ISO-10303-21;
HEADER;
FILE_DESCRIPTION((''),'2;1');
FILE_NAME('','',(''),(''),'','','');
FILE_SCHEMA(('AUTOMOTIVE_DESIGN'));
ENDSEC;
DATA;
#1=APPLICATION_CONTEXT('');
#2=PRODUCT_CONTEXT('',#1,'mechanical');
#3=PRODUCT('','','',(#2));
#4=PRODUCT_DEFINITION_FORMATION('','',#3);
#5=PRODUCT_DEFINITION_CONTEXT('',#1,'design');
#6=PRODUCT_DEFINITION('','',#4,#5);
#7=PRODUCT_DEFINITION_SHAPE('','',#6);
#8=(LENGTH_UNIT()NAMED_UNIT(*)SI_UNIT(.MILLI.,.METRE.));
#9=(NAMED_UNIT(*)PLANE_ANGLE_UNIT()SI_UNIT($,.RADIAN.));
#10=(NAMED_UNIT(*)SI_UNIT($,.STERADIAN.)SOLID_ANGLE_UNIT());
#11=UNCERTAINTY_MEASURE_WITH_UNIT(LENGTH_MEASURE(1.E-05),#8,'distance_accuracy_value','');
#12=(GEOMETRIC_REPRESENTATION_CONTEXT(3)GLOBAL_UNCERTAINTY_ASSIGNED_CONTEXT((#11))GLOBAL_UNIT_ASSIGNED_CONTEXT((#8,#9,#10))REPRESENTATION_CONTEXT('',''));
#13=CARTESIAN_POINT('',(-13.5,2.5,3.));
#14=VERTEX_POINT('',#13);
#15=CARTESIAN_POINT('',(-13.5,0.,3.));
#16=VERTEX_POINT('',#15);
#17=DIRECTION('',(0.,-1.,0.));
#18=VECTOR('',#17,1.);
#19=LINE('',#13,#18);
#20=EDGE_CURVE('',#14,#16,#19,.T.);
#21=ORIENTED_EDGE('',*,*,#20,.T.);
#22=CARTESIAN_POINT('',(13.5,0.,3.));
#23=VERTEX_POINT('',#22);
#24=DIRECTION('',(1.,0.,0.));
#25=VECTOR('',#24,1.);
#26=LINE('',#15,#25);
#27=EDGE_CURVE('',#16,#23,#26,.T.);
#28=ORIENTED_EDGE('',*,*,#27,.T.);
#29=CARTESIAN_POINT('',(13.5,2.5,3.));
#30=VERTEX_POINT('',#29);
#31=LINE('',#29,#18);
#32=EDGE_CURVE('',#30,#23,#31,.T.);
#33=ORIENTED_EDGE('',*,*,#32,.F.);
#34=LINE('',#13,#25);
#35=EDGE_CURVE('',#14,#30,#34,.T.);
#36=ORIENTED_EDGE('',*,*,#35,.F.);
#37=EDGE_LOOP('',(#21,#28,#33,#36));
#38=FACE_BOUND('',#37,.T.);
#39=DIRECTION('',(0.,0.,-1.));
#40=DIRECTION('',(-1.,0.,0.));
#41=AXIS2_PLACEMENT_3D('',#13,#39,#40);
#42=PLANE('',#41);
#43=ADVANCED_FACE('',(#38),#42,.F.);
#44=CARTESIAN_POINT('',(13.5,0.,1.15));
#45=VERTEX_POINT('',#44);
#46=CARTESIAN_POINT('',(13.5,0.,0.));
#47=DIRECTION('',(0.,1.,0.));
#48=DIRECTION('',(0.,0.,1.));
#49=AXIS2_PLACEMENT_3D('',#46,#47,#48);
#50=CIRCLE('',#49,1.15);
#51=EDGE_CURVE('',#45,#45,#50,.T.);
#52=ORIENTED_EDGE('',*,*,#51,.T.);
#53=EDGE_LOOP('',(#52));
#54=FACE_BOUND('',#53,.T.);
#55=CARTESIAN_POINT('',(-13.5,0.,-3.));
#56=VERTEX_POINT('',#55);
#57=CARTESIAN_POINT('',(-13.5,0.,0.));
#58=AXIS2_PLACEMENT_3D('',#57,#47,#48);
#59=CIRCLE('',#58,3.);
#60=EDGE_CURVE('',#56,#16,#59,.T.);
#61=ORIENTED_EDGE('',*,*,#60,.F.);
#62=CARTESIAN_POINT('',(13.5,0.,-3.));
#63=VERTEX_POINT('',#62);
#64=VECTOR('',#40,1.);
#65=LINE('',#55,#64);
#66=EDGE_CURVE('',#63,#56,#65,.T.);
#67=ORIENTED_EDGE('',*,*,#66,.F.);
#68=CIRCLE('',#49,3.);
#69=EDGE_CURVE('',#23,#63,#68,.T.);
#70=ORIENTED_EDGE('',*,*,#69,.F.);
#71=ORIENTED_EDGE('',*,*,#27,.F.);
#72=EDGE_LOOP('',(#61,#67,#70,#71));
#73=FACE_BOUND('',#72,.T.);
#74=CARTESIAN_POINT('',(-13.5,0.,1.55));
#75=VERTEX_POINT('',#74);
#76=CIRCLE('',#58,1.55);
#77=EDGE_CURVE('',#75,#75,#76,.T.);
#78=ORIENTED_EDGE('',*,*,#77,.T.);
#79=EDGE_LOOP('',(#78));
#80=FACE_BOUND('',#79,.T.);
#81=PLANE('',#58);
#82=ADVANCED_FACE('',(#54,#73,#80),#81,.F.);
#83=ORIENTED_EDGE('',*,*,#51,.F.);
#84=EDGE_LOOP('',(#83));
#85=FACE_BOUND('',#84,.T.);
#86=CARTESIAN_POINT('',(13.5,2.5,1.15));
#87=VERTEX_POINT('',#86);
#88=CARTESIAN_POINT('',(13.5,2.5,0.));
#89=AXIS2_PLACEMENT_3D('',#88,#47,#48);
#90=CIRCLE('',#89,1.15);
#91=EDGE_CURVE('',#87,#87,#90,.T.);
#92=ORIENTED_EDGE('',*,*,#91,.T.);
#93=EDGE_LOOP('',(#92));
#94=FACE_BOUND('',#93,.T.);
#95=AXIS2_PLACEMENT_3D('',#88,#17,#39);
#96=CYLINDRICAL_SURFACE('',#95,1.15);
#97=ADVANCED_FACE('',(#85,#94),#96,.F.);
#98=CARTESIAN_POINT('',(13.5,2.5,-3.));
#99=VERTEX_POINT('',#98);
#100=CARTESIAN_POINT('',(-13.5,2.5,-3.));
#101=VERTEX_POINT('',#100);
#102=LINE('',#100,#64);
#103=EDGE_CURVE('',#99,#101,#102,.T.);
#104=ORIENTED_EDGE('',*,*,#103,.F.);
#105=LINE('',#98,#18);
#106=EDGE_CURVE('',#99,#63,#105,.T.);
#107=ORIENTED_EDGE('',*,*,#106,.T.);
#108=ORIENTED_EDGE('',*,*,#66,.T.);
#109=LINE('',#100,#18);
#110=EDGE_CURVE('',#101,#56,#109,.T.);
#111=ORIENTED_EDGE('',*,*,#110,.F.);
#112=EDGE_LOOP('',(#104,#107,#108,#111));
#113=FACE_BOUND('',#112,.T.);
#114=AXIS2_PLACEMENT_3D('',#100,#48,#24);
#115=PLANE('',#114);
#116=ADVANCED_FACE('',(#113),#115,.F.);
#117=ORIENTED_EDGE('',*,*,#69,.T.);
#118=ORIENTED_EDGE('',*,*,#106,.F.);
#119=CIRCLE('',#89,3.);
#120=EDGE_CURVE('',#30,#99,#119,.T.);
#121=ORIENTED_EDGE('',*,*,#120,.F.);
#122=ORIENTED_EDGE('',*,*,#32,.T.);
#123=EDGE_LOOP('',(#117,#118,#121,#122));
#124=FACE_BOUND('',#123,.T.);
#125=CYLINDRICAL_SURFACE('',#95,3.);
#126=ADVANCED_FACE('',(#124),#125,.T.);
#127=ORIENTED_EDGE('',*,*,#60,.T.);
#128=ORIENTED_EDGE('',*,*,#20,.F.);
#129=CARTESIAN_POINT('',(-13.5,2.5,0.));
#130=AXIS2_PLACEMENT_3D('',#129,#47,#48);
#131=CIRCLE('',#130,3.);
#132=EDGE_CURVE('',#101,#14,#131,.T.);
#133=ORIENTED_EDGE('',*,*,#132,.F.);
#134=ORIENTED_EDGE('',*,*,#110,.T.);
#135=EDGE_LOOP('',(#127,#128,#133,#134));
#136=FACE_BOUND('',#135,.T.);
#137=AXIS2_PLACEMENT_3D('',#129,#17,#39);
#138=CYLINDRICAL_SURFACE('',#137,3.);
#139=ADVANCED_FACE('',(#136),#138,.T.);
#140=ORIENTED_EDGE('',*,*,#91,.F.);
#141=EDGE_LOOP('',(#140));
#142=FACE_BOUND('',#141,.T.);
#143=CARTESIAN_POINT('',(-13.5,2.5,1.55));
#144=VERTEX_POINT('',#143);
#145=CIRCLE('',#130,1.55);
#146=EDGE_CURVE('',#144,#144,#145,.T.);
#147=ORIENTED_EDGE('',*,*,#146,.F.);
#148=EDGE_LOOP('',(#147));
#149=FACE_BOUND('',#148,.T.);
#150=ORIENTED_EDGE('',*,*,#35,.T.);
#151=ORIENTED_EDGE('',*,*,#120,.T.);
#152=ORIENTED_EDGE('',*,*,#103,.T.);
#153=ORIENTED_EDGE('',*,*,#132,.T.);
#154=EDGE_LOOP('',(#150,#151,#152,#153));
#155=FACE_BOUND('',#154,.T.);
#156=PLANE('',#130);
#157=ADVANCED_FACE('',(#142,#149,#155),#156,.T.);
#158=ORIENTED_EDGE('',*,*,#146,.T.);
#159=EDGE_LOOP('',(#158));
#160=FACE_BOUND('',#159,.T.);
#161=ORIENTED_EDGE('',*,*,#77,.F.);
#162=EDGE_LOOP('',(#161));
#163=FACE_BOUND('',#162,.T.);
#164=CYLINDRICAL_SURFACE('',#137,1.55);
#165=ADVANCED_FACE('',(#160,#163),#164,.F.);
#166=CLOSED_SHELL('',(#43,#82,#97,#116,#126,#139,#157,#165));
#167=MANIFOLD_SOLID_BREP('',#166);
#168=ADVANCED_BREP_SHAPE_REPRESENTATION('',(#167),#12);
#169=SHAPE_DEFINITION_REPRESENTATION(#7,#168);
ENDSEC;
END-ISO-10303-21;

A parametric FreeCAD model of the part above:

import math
import FreeCAD as App
import Part
import Sketcher

V = App.Vector
Q = App.Units.Quantity

doc = App.newDocument("Part")
body = doc.addObject("PartDesign::Body", "Body")

# Sketch on XZ plane
sketch1 = body.newObject("Sketcher::SketchObject", "Sketch")
sketch1.AttachmentSupport = (doc.getObject("XZ_Plane"), [""])
sketch1.MapMode = "FlatFace"
sketch1.addGeometry(Part.LineSegment(V(13.5, -3, 0), V(-13.5, -3, 0)), False)
sketch1.addGeometry(Part.ArcOfCircle(Part.Circle(V(-13.5, 0, 0), V(0, 0, 1), 3), math.radians(90), math.radians(270)), False)
sketch1.addGeometry(Part.LineSegment(V(-13.5, 3, 0), V(13.5, 3, 0)), False)
sketch1.addGeometry(Part.ArcOfCircle(Part.Circle(V(13.5, 0, 0), V(0, 0, 1), 3), math.radians(-90), math.radians(90)), False)
sketch1.addGeometry(Part.Circle(V(13.5, 0, 0), V(0, 0, 1), 1.1), False)
sketch1.addGeometry(Part.Circle(V(-13.5, 0, 0), V(0, 0, 1), 1.6), False)
sketch1.addConstraint(Sketcher.Constraint("Tangent", 0, 2, 1, 2))
sketch1.addConstraint(Sketcher.Constraint("Tangent", 1, 1, 2, 1))
sketch1.addConstraint(Sketcher.Constraint("Tangent", 2, 2, 3, 2))
sketch1.addConstraint(Sketcher.Constraint("Tangent", 3, 1, 0, 1))
sketch1.addConstraint(Sketcher.Constraint("Horizontal", 0))
sketch1.addConstraint(Sketcher.Constraint("Horizontal", 2))
sketch1.addConstraint(Sketcher.Constraint("Coincident", 4, 3, 3, 3))
sketch1.addConstraint(Sketcher.Constraint("Coincident", 5, 3, 1, 3))
sketch1.addConstraint(Sketcher.Constraint("Symmetric", 1, 3, 3, 3, -1, 1))
sketch1.addConstraint(Sketcher.Constraint("Radius", 1, Q("3 mm")))
sketch1.addConstraint(Sketcher.Constraint("Diameter", 4, Q("2.3 mm")))
sketch1.addConstraint(Sketcher.Constraint("Diameter", 5, Q("3.1 mm")))
sketch1.addConstraint(Sketcher.Constraint("DistanceX", 0, 2, 0, 1, Q("27 mm")))
pad1 = body.newObject("PartDesign::Pad", "Pad")
pad1.Profile = sketch1
pad1.Length = 2.5
pad1.Reversed = True

doc.recompute()
